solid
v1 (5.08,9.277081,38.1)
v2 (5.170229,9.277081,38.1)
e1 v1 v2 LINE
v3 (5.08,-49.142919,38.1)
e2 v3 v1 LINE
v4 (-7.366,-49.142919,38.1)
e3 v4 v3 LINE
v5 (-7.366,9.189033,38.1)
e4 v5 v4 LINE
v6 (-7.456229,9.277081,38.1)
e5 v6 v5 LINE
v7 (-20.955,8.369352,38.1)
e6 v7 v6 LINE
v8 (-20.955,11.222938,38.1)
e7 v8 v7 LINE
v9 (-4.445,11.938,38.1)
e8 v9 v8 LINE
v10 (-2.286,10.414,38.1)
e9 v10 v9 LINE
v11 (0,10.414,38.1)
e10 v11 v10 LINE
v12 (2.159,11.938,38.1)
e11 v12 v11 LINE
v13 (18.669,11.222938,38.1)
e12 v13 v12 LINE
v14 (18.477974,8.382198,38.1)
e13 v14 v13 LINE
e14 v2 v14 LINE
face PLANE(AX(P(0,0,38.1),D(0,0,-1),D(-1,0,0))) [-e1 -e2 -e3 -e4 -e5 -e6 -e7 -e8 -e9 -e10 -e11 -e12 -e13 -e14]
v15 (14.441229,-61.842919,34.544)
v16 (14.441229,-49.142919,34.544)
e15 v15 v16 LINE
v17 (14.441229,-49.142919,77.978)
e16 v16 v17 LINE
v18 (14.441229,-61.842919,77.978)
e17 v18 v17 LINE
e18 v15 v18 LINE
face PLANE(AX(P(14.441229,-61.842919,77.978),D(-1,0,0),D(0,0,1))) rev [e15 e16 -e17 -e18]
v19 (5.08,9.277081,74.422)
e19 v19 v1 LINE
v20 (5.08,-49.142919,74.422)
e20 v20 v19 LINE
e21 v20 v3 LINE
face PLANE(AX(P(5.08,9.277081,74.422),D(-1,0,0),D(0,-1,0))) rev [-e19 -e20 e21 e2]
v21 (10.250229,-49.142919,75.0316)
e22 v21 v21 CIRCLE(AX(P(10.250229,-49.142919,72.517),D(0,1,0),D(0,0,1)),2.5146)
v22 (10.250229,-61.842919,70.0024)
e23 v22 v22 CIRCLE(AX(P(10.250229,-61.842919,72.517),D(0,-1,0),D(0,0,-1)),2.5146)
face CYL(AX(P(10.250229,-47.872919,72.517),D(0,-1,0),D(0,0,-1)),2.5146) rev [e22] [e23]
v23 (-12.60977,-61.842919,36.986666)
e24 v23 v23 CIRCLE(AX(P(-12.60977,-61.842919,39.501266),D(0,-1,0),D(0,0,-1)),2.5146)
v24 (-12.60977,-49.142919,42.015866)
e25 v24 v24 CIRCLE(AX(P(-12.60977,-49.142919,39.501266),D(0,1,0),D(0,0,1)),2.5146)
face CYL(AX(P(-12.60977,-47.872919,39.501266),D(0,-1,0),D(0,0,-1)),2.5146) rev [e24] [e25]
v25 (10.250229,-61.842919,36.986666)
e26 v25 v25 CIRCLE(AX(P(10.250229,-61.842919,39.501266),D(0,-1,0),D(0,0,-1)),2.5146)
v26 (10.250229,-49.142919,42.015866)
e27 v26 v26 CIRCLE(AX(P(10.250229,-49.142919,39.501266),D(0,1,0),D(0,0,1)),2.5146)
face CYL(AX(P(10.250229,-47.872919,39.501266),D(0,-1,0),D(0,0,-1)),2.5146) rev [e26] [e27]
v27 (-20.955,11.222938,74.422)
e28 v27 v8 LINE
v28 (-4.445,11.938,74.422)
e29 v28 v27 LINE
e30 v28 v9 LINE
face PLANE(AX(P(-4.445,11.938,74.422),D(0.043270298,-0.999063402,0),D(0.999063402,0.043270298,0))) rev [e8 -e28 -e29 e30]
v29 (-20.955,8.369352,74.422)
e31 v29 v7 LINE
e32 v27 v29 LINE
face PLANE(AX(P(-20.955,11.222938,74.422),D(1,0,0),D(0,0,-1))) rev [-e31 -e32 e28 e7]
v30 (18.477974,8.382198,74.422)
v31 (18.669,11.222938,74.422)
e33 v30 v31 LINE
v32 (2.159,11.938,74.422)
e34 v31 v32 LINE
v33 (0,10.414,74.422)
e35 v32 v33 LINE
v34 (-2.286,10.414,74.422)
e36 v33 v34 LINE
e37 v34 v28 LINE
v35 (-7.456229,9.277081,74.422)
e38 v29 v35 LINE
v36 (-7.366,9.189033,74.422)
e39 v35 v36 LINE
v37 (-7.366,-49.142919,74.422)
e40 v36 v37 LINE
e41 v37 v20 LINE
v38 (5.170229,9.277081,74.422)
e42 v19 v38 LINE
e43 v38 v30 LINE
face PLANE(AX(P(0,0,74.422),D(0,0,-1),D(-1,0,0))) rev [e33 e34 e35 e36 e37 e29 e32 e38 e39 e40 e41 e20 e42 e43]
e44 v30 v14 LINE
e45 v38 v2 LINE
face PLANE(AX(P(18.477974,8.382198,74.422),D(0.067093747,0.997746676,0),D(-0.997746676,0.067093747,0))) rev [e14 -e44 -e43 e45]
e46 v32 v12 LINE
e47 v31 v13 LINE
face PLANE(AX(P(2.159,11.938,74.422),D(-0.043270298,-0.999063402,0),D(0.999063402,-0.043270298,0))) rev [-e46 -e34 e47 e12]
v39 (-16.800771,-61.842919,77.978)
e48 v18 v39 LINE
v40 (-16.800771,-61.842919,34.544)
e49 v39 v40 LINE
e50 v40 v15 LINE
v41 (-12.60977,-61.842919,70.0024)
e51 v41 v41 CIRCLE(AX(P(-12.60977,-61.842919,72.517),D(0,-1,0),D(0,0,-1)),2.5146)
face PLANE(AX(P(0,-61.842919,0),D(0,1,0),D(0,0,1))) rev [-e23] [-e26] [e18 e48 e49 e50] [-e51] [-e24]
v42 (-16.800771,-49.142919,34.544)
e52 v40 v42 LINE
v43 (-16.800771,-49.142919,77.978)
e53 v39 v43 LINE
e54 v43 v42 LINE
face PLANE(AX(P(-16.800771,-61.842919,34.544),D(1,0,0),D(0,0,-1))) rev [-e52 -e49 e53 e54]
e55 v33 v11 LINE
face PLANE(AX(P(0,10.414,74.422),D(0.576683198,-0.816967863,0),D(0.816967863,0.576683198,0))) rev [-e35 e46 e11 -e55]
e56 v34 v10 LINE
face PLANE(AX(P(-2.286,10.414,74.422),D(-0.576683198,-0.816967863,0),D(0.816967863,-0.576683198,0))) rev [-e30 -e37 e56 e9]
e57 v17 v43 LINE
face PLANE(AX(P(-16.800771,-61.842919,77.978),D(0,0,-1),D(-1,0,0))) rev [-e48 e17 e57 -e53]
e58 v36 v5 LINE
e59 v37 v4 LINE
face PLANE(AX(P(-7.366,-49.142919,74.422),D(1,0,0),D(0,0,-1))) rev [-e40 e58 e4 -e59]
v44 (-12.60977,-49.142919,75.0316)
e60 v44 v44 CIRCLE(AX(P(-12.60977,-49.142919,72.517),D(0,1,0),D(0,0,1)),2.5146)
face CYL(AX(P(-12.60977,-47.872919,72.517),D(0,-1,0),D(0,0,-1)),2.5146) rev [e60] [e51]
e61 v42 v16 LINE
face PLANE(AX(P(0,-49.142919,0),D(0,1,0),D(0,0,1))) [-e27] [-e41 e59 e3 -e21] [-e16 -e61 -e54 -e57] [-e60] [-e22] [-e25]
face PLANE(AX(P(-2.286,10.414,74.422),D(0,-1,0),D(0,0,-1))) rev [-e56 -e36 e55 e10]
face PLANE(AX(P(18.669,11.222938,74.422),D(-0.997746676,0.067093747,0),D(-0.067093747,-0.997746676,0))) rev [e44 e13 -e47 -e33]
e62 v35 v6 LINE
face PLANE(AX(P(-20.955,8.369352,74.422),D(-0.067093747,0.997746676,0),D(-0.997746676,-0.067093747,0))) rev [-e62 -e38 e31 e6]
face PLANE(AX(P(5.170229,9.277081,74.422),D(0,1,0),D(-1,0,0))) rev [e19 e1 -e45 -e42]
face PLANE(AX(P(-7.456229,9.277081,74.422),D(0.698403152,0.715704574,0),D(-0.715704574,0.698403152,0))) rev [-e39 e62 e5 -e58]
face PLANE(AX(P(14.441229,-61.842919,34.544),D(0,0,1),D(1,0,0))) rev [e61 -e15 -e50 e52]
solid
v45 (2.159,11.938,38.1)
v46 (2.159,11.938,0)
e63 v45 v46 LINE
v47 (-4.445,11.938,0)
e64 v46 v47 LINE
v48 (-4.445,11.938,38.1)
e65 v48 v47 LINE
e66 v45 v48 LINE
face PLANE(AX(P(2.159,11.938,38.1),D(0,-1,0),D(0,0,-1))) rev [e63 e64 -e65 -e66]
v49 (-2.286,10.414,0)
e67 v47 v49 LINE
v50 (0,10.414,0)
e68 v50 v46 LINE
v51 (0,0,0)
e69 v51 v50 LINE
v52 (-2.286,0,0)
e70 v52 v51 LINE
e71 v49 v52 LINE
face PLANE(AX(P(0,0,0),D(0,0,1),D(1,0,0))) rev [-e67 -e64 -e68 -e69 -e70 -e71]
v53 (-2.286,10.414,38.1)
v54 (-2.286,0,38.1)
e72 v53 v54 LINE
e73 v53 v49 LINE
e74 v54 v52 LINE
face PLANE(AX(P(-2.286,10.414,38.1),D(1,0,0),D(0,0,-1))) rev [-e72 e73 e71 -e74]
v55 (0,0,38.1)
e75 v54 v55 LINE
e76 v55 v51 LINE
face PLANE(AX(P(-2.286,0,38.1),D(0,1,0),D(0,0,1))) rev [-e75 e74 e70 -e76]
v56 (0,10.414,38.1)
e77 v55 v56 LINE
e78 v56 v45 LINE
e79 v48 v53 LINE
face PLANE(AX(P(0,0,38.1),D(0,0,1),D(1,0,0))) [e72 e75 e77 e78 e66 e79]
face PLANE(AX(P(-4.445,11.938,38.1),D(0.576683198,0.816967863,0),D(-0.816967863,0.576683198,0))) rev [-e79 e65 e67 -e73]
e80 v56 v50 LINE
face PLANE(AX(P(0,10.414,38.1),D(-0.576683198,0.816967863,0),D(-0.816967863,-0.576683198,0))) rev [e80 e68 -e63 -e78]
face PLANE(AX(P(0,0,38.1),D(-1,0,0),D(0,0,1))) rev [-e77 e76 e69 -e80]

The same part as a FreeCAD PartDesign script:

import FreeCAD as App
import Part
import Sketcher
from FreeCAD import Vector
Q = App.Units.Quantity


def add_polygon(sketch, points):
    """Adds a closed chain of lines whose ends are joined by coincident constraints."""
    first, n = sketch.GeometryCount, len(points)
    for a, b in zip(points, points[1:] + points[:1]):
        sketch.addGeometry(Part.LineSegment(App.Vector(*a, 0), App.Vector(*b, 0)), False)
    for i in range(n):
        sketch.addConstraint(Sketcher.Constraint("Coincident", first + i, 2, first + (i + 1) % n, 1))

doc = App.newDocument("Part")
body = doc.addObject("PartDesign::Body", "Body")

# Sketch on XY plane
sketch1 = body.newObject("Sketcher::SketchObject", "Sketch")
sketch1.AttachmentSupport = (doc.getObject("XY_Plane"), [""])
sketch1.MapMode = "FlatFace"
add_polygon(sketch1, [(0, 0), (0, 10.414), (2.159, 11.938), (-4.445, 11.938), (-2.286, 10.414), (-2.286, 0)])  # lines 0-5
sketch1.addConstraint([
    Sketcher.Constraint("Vertical", 0),
    Sketcher.Constraint("Horizontal", 2),
    Sketcher.Constraint("Vertical", 4),
    Sketcher.Constraint("Horizontal", 5),
    Sketcher.Constraint("Coincident", 5, 2, -1, 1),
    Sketcher.Constraint("Horizontal", 0, 2, 3, 2),
    Sketcher.Constraint("Equal", 1, 3),
    Sketcher.Constraint("DistanceX", 2, 2, 2, 1, Q("0.26 in")),
    Sketcher.Constraint("DistanceX", 5, 1, 5, 2, Q("0.09 in")),
    Sketcher.Constraint("DistanceY", 0, 1, 0, 2, Q("0.41 in")),
    Sketcher.Constraint("DistanceY", -1, 1, 1, 2, Q("0.47 in")),
])
pad1 = body.newObject("PartDesign::Pad", "Pad")
pad1.Profile = sketch1
pad1.Length = Q("1.5 in")
body2 = doc.addObject("PartDesign::Body", "Body001")

# Sketch on XY plane
sketch2 = body2.newObject("Sketcher::SketchObject", "Sketch001")
sketch2.AttachmentSupport = (doc.getObject("XY_Plane001"), [""])
sketch2.MapMode = "FlatFace"
sketch2.AttachmentOffset = App.Placement(Vector(0, 0, 1.5 * 25.4), App.Rotation())
add_polygon(sketch2, [(-7.366, 9.189033), (-7.366, -49.142919), (5.08, -49.142919), (5.08, 9.277081), (5.170229, 9.277081), (18.477974, 8.382198), (18.669, 11.222938), (2.159, 11.938), (0, 10.414), (-2.286, 10.414), (-4.445, 11.938), (-20.955, 11.222938), (-20.955, 8.369352), (-7.456229, 9.277081)])  # lines 0-13
sketch2.addConstraint([
    Sketcher.Constraint("Vertical", 0),
    Sketcher.Constraint("Horizontal", 1),
    Sketcher.Constraint("Vertical", 2),
    Sketcher.Constraint("Horizontal", 3),
    Sketcher.Constraint("Horizontal", 8),
    Sketcher.Constraint("Vertical", 11),
    Sketcher.Constraint("PointOnObject", 7, 2, -2),
    Sketcher.Constraint("Perpendicular", 4, 5),
    Sketcher.Constraint("Horizontal", 6, 2, 9, 2),
    Sketcher.Constraint("Horizontal", 5, 2, 10, 2),
    Sketcher.Constraint("Horizontal", 3, 2, 12, 2),
    Sketcher.Constraint("Equal", 7, 9),
    Sketcher.Constraint("Equal", 6, 10),
    Sketcher.Constraint("DistanceY", 2, 1, 2, 2, Q("2.3 in")),
    Sketcher.Constraint("DistanceX", 1, 1, 1, 2, Q("0.49 in")),
    Sketcher.Constraint("DistanceX", 8, 2, 8, 1, Q("0.09 in")),
    Sketcher.Constraint("DistanceX", -1, 1, 1, 2, Q("0.2 in")),
    Sketcher.Constraint("DistanceY", -1, 1, 6, 2, Q("0.47 in")),
    Sketcher.Constraint("DistanceY", -1, 1, 7, 2, Q("0.41 in")),
    Sketcher.Constraint("DistanceX", 6, 2, 5, 2, Q("0.65 in")),
    Sketcher.Constraint("DistanceX", 9, 2, 6, 2, Q("0.26 in")),
    Sketcher.Constraint("Distance", 4, 13.337799),
    Sketcher.Constraint("DistanceX", 3, 1, 3, 2, 0.090229),
    Sketcher.Constraint("DistanceY", 0, 2, 0, 1, 58.331952),
    Sketcher.Constraint("Distance", 13, 0.126071),
    Sketcher.Constraint("DistanceY", 11, 2, 11, 1, 2.853585),
    Sketcher.Constraint("DistanceY", 0, 2, -1, 1, 49.142919),
    Sketcher.Constraint("DistanceY", 4, 2, 5, 2, 2.84074),
])
pad2 = body2.newObject("PartDesign::Pad", "Pad001")
pad2.Profile = sketch2
pad2.Length = Q("1.43 in")

# Sketch on XZ plane
sketch3 = body2.newObject("Sketcher::SketchObject", "Sketch002")
sketch3.AttachmentSupport = (doc.getObject("XZ_Plane001"), [""])
sketch3.MapMode = "FlatFace"
sketch3.AttachmentOffset = App.Placement(Vector(0, 0, 49.142919), App.Rotation())
add_polygon(sketch3, [(-16.800771, 77.978), (-16.800771, 34.544), (14.441229, 34.544), (14.441229, 77.978)])  # lines 0-3
sketch3.addConstraint([
    Sketcher.Constraint("Vertical", 0),
    Sketcher.Constraint("Horizontal", 1),
    Sketcher.Constraint("Vertical", 2),
    Sketcher.Constraint("Horizontal", 3),
    Sketcher.Constraint("DistanceX", 1, 1, 1, 2, Q("1.23 in")),
    Sketcher.Constraint("DistanceY", 0, 2, 0, 1, Q("1.71 in")),
    Sketcher.Constraint("DistanceY", -1, 1, 0, 2, Q("1.36 in")),
    Sketcher.Constraint("DistanceX", 0, 2, -1, 1, 16.800771),
])
pad3 = body2.newObject("PartDesign::Pad", "Pad002")
pad3.Profile = sketch3
pad3.Length = Q("0.5 in")

# Sketch on XZ plane
sketch4 = body2.newObject("Sketcher::SketchObject", "Sketch003")
sketch4.AttachmentSupport = (doc.getObject("XZ_Plane001"), [""])
sketch4.MapMode = "FlatFace"
sketch4.AttachmentOffset = App.Placement(Vector(0, 0, 61.842919), App.Rotation())
sketch4.addGeometry([
    Part.Circle(Vector(-12.60977, 72.517, 0), Vector(0, 0, 1), 2.5146),
    Part.Circle(Vector(10.250229, 72.517, 0), Vector(0, 0, 1), 2.5146),
    Part.Circle(Vector(10.250229, 39.501266, 0), Vector(0, 0, 1), 2.5146),
    Part.Circle(Vector(-12.60977, 39.501266, 0), Vector(0, 0, 1), 2.5146),
], False)
sketch4.addConstraint([
    Sketcher.Constraint("Equal", 0, 1),
    Sketcher.Constraint("Equal", 1, 2),
    Sketcher.Constraint("Equal", 2, 3),
    Sketcher.Constraint("Horizontal", 0, 3, 1, 3),
    Sketcher.Constraint("Horizontal", 2, 3, 3, 3),
    Sketcher.Constraint("Vertical", 1, 3, 2, 3),
    Sketcher.Constraint("Vertical", 0, 3, 3, 3),
    Sketcher.Constraint("Diameter", 0, Q("0.198 in")),
    Sketcher.Constraint("DistanceX", 0, 3, 1, 3, Q("0.9 in")),
    Sketcher.Constraint("DistanceY", -1, 1, 0, 3, Q("2.855 in")),
    Sketcher.Constraint("DistanceX", 0, 3, -1, 1, 12.60977),
    Sketcher.Constraint("DistanceY", -1, 1, 2, 3, 39.501266),
])
pocket1 = body2.newObject("PartDesign::Pocket", "Pocket")
pocket1.Profile = sketch4
pocket1.Length = Q("0.55 in")

doc.recompute()
